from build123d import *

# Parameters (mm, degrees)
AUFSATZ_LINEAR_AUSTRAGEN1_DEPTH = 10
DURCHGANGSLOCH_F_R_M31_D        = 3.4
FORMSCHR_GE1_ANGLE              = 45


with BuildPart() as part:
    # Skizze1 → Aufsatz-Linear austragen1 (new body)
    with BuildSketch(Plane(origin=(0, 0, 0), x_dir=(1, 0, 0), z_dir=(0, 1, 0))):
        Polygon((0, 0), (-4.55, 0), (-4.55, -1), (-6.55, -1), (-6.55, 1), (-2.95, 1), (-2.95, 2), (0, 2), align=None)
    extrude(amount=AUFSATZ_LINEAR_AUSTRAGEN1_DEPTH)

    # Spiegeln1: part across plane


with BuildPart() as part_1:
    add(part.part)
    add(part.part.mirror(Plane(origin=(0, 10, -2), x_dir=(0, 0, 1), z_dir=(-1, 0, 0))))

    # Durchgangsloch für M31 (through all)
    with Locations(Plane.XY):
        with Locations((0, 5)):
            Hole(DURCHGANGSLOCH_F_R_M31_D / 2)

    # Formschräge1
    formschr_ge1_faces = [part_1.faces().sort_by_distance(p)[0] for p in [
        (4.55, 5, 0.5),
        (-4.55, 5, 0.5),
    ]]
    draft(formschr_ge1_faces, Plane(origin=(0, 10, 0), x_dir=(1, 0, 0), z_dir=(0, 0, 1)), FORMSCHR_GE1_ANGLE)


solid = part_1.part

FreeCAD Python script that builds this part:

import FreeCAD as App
import Part
import Sketcher
Q = App.Units.Quantity


def faces_at(feature, points):
    """Names of the faces that lie closest to the given points."""
    faces = feature.Shape.Faces
    near = lambda p: min(range(len(faces)), key=lambda i: faces[i].distToShape(Part.Vertex(*p))[0])
    return sorted({f"Face{near(p) + 1}" for p in points})


def add_polygon(sketch, points):
    """Adds a closed chain of lines whose ends are joined by coincident constraints."""
    first, n = sketch.GeometryCount, len(points)
    for a, b in zip(points, points[1:] + points[:1]):
        sketch.addGeometry(Part.LineSegment(App.Vector(*a, 0), App.Vector(*b, 0)), False)
    for i in range(n):
        sketch.addConstraint(Sketcher.Constraint("Coincident", first + i, 2, first + (i + 1) % n, 1))

doc = App.newDocument("Part")
body = doc.addObject("PartDesign::Body", "Body")

sketch1 = doc.addObject("Sketcher::SketchObject", "Sketch")
body.addObject(sketch1)
sketch1.AttachmentSupport = (doc.XZ_Plane, [""])
sketch1.MapMode = "FlatFace"
add_polygon(sketch1, [(-4.55, 0), (0, 0), (0, -2), (-2.95, -2), (-2.95, -1), (-6.55, -1), (-6.55, 1), (-4.55, 1)])
sketch1.addConstraint(Sketcher.Constraint("Horizontal", 0))
sketch1.addConstraint(Sketcher.Constraint("Vertical", 1))
sketch1.addConstraint(Sketcher.Constraint("Horizontal", 2))
sketch1.addConstraint(Sketcher.Constraint("Vertical", 3))
sketch1.addConstraint(Sketcher.Constraint("Horizontal", 4))
sketch1.addConstraint(Sketcher.Constraint("Vertical", 5))
sketch1.addConstraint(Sketcher.Constraint("Horizontal", 6))
sketch1.addConstraint(Sketcher.Constraint("Vertical", 7))
sketch1.addConstraint(Sketcher.Constraint("Coincident", 0, 2, -1, 1))
sketch1.addConstraint(Sketcher.Constraint("Equal", 6, 1))
sketch1.addConstraint(Sketcher.Constraint("Equal", 1, 5))
sketch1.addConstraint(Sketcher.Constraint("DistanceX", 6, 1, 6, 2, Q("2 mm")))
sketch1.addConstraint(Sketcher.Constraint("DistanceY", 3, 1, 3, 2, Q("1 mm")))
sketch1.addConstraint(Sketcher.Constraint("DistanceX", 4, 2, 4, 1, Q("3.6 mm")))
sketch1.addConstraint(Sketcher.Constraint("DistanceX", 0, 1, 0, 2, Q("4.55 mm")))
pad1 = doc.addObject("PartDesign::Pad", "Pad")
body.addObject(pad1)
pad1.Profile = sketch1
pad1.Length = 10
pad1.Reversed = True
body2 = doc.addObject("PartDesign::Body", "Body001")
doc.recompute()

body2.BaseFeature = body
doc.recompute()

mirroring = doc.addObject("Part::Mirroring", "Mirroring")
mirroring.Source = body
mirroring.Base = App.Vector(0, 10, -2)
mirroring.Normal = App.Vector(-1, 0, 0)
body3 = doc.addObject("PartDesign::Body", "Body002")
body3.BaseFeature = mirroring
boolean = doc.addObject("PartDesign::Boolean", "Boolean")
body2.addObject(boolean)
boolean.Type = "Fuse"
boolean.addObjects([body3])
doc.recompute()

sketch2 = doc.addObject("Sketcher::SketchObject", "Sketch001")
body2.addObject(sketch2)
sketch2.AttachmentSupport = (doc.getObject("XY_Plane001"), [""])
sketch2.MapMode = "FlatFace"
sketch2.addGeometry(Part.Circle(App.Vector(0, 5, 0), App.Vector(0, 0, 1), 1.7), False)
sketch2.addConstraint(Sketcher.Constraint("PointOnObject", 0, 3, -2))
sketch2.addConstraint(Sketcher.Constraint("Diameter", 0, Q("3.4 mm")))
sketch2.addConstraint(Sketcher.Constraint("DistanceY", -1, 1, 0, 3, Q("5 mm")))
doc.recompute()
hole = doc.addObject("PartDesign::Hole", "Hole")
body2.addObject(hole)
hole.Profile = sketch2
hole.ThreadType = "None"
hole.Diameter = 3.4
hole.DepthType = "ThroughAll"
doc.recompute()

draft = doc.addObject("PartDesign::Draft", "Draft")
body2.addObject(draft)
draft.Base = (hole, faces_at(hole, [(4.55, 5, 0.5), (-4.55, 5, 0.5)]))
draft.NeutralPlane = (doc.getObject("XY_Plane001"), [""])
draft.Angle = 45
draft.Reversed = False
mirroring.Visibility = False

doc.recompute()
